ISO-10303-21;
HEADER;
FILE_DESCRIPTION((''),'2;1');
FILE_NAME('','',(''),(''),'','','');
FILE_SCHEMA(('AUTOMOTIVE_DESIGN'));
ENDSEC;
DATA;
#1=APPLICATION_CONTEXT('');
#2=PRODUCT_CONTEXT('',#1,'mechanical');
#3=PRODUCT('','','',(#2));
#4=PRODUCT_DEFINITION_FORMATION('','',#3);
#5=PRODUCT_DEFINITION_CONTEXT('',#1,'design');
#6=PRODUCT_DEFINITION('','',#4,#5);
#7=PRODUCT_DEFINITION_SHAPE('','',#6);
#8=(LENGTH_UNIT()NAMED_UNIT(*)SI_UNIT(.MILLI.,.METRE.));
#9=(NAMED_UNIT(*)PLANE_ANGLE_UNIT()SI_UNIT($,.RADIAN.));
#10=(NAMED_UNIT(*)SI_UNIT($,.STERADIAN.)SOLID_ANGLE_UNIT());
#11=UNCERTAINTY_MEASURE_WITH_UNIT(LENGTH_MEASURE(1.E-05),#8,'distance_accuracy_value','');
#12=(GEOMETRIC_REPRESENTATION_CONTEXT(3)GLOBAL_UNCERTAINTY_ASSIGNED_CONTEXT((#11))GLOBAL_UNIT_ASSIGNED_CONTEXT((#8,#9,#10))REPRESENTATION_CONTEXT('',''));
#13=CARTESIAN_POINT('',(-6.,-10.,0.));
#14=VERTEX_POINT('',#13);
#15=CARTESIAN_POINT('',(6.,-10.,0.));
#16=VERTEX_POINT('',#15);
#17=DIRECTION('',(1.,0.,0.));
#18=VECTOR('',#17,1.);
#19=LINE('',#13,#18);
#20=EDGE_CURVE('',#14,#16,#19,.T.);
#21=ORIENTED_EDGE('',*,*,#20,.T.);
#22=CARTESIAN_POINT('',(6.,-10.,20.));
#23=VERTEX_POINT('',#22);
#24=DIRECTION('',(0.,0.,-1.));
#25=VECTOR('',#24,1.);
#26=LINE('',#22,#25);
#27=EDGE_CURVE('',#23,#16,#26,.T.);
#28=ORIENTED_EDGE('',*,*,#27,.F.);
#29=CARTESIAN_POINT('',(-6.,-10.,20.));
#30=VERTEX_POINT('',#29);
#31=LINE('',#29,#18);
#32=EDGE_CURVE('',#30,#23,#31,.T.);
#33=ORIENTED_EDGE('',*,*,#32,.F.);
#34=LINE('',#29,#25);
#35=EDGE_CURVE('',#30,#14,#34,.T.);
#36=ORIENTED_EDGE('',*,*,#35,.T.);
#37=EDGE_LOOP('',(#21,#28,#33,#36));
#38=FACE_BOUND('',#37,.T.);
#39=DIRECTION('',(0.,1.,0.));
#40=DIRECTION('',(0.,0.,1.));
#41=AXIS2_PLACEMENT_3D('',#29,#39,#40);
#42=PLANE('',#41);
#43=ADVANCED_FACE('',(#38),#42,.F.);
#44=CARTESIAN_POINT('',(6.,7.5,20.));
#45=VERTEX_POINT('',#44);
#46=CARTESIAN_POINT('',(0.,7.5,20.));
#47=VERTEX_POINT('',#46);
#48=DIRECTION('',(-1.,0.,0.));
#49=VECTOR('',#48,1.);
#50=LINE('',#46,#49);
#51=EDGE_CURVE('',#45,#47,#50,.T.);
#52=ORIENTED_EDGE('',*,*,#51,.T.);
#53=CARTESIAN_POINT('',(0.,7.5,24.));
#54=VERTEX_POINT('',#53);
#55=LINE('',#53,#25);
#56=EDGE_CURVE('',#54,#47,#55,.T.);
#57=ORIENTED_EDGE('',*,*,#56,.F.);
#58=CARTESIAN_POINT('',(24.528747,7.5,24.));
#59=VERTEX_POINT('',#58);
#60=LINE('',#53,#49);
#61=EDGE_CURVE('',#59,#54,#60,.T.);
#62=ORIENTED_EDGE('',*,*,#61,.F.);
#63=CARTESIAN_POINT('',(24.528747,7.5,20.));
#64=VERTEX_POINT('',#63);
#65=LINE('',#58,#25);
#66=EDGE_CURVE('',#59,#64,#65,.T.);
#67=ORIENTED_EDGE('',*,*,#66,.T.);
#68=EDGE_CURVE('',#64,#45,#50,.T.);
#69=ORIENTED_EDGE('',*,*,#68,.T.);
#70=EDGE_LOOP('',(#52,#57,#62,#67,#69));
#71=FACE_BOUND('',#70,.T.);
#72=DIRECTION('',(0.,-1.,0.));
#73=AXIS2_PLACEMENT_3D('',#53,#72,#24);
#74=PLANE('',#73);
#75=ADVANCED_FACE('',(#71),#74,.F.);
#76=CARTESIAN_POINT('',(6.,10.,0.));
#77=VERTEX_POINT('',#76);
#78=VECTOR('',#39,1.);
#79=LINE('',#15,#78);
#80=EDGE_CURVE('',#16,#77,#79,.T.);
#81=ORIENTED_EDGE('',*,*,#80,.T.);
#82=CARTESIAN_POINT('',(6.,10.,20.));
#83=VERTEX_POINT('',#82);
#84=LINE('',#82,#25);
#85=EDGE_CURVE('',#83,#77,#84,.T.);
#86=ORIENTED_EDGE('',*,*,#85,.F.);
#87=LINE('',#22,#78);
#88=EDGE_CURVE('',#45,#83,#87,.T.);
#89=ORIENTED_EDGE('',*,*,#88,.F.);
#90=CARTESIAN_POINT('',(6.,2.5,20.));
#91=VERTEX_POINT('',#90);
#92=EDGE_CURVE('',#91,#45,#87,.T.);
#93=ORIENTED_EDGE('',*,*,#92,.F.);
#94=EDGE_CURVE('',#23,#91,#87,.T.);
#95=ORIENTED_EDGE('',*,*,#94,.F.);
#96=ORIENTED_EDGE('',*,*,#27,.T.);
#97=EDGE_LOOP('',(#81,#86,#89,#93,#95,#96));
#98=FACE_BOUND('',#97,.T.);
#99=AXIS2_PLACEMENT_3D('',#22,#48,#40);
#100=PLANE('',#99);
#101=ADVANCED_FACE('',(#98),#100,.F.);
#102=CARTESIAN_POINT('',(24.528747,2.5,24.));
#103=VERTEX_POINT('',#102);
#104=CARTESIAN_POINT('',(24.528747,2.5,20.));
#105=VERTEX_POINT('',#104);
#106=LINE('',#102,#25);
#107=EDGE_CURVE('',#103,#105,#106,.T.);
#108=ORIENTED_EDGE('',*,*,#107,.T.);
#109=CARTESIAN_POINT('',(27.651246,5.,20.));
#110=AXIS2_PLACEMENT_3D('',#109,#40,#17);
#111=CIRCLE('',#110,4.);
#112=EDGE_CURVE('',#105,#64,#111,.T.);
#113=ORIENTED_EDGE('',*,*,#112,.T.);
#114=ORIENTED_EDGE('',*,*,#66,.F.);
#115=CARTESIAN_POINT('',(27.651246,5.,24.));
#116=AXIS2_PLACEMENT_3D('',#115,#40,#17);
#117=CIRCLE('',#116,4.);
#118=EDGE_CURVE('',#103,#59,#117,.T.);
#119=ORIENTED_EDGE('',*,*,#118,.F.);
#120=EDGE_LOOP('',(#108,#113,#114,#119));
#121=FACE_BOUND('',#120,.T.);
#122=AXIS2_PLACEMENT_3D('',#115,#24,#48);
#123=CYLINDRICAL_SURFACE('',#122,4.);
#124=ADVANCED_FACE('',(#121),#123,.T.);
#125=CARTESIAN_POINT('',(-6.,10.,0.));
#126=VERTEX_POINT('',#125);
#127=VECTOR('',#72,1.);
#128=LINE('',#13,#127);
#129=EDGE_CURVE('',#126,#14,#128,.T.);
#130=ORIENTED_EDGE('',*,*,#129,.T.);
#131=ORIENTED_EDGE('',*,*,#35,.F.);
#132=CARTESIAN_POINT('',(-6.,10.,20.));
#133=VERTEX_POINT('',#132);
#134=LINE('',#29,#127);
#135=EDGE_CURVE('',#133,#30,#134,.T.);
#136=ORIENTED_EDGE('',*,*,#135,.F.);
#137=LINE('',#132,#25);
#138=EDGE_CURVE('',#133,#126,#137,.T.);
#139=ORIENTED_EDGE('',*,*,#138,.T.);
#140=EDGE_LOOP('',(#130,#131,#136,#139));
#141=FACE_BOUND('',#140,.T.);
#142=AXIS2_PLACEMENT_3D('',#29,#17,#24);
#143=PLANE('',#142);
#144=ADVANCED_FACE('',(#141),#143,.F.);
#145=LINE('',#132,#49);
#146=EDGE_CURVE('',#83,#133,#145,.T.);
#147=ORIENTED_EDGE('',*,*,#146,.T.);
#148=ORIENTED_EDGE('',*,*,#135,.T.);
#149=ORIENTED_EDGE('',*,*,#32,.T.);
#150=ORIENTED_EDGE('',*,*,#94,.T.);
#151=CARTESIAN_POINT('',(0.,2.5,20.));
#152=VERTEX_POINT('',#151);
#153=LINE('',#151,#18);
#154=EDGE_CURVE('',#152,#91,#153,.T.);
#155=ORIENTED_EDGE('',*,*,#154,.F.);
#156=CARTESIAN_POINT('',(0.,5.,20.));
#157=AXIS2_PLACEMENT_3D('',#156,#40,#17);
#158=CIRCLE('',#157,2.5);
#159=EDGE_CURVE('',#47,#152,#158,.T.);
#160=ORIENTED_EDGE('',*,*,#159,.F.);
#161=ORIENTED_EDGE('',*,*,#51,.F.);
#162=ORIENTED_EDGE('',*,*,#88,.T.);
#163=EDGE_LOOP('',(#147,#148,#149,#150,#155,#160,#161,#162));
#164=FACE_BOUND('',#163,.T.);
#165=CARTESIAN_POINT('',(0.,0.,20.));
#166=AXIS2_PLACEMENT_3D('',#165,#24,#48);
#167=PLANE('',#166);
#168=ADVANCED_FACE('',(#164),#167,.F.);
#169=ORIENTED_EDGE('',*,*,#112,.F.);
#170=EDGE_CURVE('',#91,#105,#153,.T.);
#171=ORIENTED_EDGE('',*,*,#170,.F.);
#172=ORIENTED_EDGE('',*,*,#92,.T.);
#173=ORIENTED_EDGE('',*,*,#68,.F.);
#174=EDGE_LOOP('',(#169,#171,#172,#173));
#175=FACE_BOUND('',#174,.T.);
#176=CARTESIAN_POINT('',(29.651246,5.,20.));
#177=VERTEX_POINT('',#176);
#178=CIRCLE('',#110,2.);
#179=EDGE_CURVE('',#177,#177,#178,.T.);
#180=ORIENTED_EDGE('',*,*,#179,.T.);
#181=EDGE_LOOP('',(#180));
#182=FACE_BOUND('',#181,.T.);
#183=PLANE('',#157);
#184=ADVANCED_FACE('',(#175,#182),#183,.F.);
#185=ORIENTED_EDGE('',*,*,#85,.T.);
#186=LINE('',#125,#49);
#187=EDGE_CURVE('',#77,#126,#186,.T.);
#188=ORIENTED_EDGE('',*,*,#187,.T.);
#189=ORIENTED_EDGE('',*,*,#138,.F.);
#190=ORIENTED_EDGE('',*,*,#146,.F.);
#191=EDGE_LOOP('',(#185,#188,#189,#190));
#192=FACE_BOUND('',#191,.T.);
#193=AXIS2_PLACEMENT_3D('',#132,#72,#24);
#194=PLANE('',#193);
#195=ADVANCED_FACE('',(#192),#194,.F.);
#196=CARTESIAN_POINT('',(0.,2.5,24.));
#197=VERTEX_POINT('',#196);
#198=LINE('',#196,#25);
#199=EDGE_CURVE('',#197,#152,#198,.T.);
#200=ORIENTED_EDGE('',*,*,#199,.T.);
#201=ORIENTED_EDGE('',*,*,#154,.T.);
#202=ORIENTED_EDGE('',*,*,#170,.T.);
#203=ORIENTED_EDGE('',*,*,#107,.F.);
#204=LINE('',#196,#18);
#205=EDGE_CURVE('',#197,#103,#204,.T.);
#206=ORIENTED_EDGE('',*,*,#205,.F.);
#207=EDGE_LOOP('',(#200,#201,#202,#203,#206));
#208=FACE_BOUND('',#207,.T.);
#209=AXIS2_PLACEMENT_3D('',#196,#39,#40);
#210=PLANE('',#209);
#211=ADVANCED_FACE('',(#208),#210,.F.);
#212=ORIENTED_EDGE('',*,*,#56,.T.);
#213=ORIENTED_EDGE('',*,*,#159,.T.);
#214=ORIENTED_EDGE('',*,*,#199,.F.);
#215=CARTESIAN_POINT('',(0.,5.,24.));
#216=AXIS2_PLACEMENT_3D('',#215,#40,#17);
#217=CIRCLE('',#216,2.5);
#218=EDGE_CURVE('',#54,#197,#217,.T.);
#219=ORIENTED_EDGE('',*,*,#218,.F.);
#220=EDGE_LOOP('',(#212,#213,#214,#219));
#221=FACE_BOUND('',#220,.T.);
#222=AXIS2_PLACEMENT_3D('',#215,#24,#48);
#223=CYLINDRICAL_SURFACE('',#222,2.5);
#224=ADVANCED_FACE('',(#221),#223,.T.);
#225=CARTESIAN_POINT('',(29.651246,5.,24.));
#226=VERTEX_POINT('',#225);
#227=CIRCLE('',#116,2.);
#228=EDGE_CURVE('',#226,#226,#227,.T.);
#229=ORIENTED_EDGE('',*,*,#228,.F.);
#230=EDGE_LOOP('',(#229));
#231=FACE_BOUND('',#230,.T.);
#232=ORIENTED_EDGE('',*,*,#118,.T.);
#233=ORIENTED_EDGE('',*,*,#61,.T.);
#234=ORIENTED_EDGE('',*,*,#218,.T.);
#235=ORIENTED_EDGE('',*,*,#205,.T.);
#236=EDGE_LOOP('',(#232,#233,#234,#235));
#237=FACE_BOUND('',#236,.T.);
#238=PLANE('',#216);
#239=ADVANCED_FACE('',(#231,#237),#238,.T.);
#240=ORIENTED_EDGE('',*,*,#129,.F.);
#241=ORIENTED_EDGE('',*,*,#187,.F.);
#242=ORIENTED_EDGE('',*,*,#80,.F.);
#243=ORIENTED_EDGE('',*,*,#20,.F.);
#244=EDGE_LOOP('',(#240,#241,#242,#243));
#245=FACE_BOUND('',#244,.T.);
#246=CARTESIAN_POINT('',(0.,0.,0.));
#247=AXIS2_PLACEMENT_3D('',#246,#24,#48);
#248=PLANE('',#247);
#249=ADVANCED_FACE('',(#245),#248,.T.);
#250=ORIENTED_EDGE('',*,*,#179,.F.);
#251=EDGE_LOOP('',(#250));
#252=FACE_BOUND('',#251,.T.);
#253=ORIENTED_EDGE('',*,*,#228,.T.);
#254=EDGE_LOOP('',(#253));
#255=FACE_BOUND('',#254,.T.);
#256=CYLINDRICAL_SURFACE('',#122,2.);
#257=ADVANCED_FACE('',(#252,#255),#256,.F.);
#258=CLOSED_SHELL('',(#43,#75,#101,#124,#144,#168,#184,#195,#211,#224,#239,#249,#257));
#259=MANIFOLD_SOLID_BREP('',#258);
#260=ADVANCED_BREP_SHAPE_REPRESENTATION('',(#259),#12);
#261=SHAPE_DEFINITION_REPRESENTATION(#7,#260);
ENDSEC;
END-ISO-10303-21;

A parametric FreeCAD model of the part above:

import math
import FreeCAD as App
import Part
import Sketcher


def add_polygon(sketch, points):
    """Adds a closed chain of lines whose ends are joined by coincident constraints."""
    first, n = sketch.GeometryCount, len(points)
    for a, b in zip(points, points[1:] + points[:1]):
        sketch.addGeometry(Part.LineSegment(App.Vector(*a, 0), App.Vector(*b, 0)), False)
    for i in range(n):
        sketch.addConstraint(Sketcher.Constraint("Coincident", first + i, 2, first + (i + 1) % n, 1))

doc = App.newDocument("Part")
body = doc.addObject("PartDesign::Body", "Body")

sketch1 = doc.addObject("Sketcher::SketchObject", "Sketch")
body.addObject(sketch1)
sketch1.AttachmentSupport = (doc.XY_Plane, [""])
sketch1.MapMode = "FlatFace"
add_polygon(sketch1, [(-6, 10), (-6, -10), (6, -10), (6, 10)])
sketch1.addConstraint([
    Sketcher.Constraint("Vertical", 0),
    Sketcher.Constraint("Horizontal", 1),
    Sketcher.Constraint("Vertical", 2),
    Sketcher.Constraint("Horizontal", 3),
    Sketcher.Constraint("Symmetric", 0, 2, 2, 2, -1, 1),
    Sketcher.Constraint("DistanceX", 1, 1, 1, 2, 12.0),
    Sketcher.Constraint("DistanceY", 0, 2, 0, 1, 20.0),
])
pad1 = doc.addObject("PartDesign::Pad", "Pad")
body.addObject(pad1)
pad1.Profile = sketch1
pad1.Length = 20

sketch2 = doc.addObject("Sketcher::SketchObject", "Sketch001")
body.addObject(sketch2)
sketch2.AttachmentSupport = (doc.XY_Plane, [""])
sketch2.MapMode = "FlatFace"
sketch2.AttachmentOffset = App.Placement(App.Vector(0, 0, 20), App.Rotation())
sketch2.addGeometry([
    Part.LineSegment(App.Vector(24.5, 7.5, 0), App.Vector(0, 7.5, 0)),
    Part.ArcOfCircle(Part.Circle(App.Vector(0, 5, 0), App.Vector(0, 0, 1), 2.5), math.radians(90), math.radians(270)),
    Part.LineSegment(App.Vector(0, 2.5, 0), App.Vector(24.5, 2.5, 0)),
    Part.ArcOfCircle(Part.Circle(App.Vector(27.7, 5, 0), App.Vector(0, 0, 1), 4), math.radians(-141), math.radians(141)),
    Part.Circle(App.Vector(27.7, 5, 0), App.Vector(0, 0, 1), 2),
], False)
sketch2.addConstraint([
    Sketcher.Constraint("Tangent", 0, 2, 1, 1),
    Sketcher.Constraint("Tangent", 1, 2, 2, 1),
    Sketcher.Constraint("Coincident", 2, 2, 3, 1),
    Sketcher.Constraint("Coincident", 3, 2, 0, 1),
    Sketcher.Constraint("Horizontal", 0),
    Sketcher.Constraint("Horizontal", 2),
    Sketcher.Constraint("Coincident", 4, 3, 3, 3),
    Sketcher.Constraint("PointOnObject", 1, 3, -2),
    Sketcher.Constraint("Horizontal", 1, 3, 3, 3),
    Sketcher.Constraint("Diameter", 4, 4.0),
    Sketcher.Constraint("Radius", 3, 4.0),
    Sketcher.Constraint("Radius", 1, 2.5),
    Sketcher.Constraint("DistanceY", -1, 1, 1, 3, 5.0),
    Sketcher.Constraint("DistanceX", 0, 2, 0, 1, 24.528747),
])
pad2 = doc.addObject("PartDesign::Pad", "Pad001")
body.addObject(pad2)
pad2.Profile = sketch2
pad2.Length = 4

doc.recompute()
